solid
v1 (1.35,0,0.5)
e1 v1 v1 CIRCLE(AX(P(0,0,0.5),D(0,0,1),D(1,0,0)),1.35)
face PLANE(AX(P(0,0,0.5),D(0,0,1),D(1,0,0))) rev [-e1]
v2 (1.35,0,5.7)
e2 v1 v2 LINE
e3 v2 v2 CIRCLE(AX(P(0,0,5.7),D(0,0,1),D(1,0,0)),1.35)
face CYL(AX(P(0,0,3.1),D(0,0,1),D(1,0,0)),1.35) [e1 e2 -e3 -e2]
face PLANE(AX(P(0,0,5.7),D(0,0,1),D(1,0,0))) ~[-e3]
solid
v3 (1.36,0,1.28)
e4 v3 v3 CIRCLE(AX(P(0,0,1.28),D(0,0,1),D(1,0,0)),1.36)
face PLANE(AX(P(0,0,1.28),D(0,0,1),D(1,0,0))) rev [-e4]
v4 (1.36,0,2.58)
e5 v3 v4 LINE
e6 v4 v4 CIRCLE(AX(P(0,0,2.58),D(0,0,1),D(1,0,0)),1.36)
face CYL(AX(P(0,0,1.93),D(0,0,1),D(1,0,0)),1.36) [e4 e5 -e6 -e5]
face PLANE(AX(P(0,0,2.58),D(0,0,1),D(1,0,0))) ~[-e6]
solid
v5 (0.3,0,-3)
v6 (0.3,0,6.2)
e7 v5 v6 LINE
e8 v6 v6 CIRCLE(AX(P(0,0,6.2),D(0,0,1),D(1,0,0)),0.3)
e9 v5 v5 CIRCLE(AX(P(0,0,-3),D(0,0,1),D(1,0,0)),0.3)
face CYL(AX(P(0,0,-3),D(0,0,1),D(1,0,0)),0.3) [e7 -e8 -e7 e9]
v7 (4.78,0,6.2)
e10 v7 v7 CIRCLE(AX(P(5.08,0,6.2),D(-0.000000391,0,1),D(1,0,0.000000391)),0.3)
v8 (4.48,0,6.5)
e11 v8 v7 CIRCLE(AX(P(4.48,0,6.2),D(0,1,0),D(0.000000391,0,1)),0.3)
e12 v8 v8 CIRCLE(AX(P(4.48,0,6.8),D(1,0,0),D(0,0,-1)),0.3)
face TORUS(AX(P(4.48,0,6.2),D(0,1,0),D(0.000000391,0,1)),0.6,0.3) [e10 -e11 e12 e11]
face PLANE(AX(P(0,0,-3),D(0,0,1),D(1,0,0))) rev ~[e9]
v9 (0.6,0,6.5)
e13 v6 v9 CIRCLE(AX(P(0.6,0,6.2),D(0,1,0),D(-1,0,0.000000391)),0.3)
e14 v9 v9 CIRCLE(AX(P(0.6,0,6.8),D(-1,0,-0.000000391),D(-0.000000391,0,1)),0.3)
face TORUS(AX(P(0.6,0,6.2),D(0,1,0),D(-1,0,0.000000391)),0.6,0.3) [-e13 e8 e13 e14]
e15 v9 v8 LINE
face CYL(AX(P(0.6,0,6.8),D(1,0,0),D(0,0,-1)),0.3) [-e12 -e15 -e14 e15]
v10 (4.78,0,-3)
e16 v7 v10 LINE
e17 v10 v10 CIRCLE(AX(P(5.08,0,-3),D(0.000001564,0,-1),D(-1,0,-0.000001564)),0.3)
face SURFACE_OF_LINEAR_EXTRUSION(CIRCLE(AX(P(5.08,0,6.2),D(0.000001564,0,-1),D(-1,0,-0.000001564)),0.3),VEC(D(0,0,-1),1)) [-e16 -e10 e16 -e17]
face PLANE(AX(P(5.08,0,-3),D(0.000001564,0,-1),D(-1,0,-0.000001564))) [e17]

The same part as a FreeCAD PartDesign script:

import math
import FreeCAD as App
import Part
import Sketcher

V = App.Vector


def add_polygon(sketch, points):
    """Adds a closed chain of lines whose ends are joined by coincident constraints."""
    first, n = sketch.GeometryCount, len(points)
    for a, b in zip(points, points[1:] + points[:1]):
        sketch.addGeometry(Part.LineSegment(App.Vector(*a, 0), App.Vector(*b, 0)), False)
    for i in range(n):
        sketch.addConstraint(Sketcher.Constraint("Coincident", first + i, 2, first + (i + 1) % n, 1))

doc = App.newDocument("Part")
body = doc.addObject("PartDesign::Body", "Body")

# Sketch on XY plane
sketch1 = body.newObject("Sketcher::SketchObject", "Sketch")
sketch1.AttachmentSupport = (doc.getObject("XY_Plane"), [""])
sketch1.MapMode = "FlatFace"
sketch1.addGeometry(Part.Circle(V(0, 0, 0), V(0, 0, 1), 0.3), False)
sketch1.addConstraint([
    Sketcher.Constraint("Coincident", 0, 3, -1, 1),
    Sketcher.Constraint("Diameter", 0, 0.6),
])

# Sketch on XZ plane
sketch2 = body.newObject("Sketcher::SketchObject", "Sketch001")
sketch2.AttachmentSupport = (doc.getObject("XZ_Plane"), [""])
sketch2.MapMode = "FlatFace"
sketch2.addGeometry([
    Part.LineSegment(V(0, -3, 0), V(0, 6.2, 0)),  # 0
    Part.ArcOfCircle(Part.Circle(V(0.6, 6.2, 0), V(0, 0, 1), 0.6), math.radians(90), math.radians(180)),  # 1
    Part.LineSegment(V(0.6, 6.8, 0), V(4.5, 6.8, 0)),  # 2
    Part.ArcOfCircle(Part.Circle(V(4.5, 6.2, 0), V(0, 0, 1), 0.6), math.radians(0), math.radians(90)),  # 3
    Part.LineSegment(V(5.1, 6.2, 0), V(5.1, -3, 0)),  # 4
], False)
sketch2.addConstraint([
    Sketcher.Constraint("Tangent", 0, 2, 1, 2),
    Sketcher.Constraint("Tangent", 1, 1, 2, 1),
    Sketcher.Constraint("Tangent", 2, 2, 3, 2),
    Sketcher.Constraint("Tangent", 3, 1, 4, 1),
    Sketcher.Constraint("Vertical", 0),
    Sketcher.Constraint("Horizontal", 2),
    Sketcher.Constraint("Vertical", 4),
    Sketcher.Constraint("Equal", 1, 3),
    Sketcher.Constraint("PointOnObject", 0, 1, -2),
    Sketcher.Constraint("Horizontal", 0, 1, 4, 2),
    Sketcher.Constraint("Radius", 1, 0.6),
    Sketcher.Constraint("DistanceY", 0, 1, 0, 2, 9.2),
    Sketcher.Constraint("DistanceY", 0, 1, -1, 1, 3.0),
    Sketcher.Constraint("DistanceX", 2, 1, 2, 2, 3.88),
])
doc.recompute()

additivepipe = body.newObject("PartDesign::AdditivePipe", "AdditivePipe")
additivepipe.Profile = sketch1
additivepipe.Spine = (sketch2, ["Edge1", "Edge2", "Edge3", "Edge4", "Edge5"])
body2 = doc.addObject("PartDesign::Body", "Body001")

# Sketch on XZ plane
sketch3 = body2.newObject("Sketcher::SketchObject", "Sketch002")
sketch3.AttachmentSupport = (doc.getObject("XZ_Plane001"), [""])
sketch3.MapMode = "FlatFace"
add_polygon(sketch3, [(0, 5.7), (0, 0.5), (1.4, 0.5), (1.4, 5.7)])  # lines 0-3
sketch3.addConstraint([
    Sketcher.Constraint("Vertical", 0),
    Sketcher.Constraint("Horizontal", 1),
    Sketcher.Constraint("Vertical", 2),
    Sketcher.Constraint("Horizontal", 3),
    Sketcher.Constraint("PointOnObject", 0, 2, -2),
    Sketcher.Constraint("DistanceY", 0, 2, 0, 1, 5.2),
    Sketcher.Constraint("DistanceX", 1, 1, 1, 2, 1.35),
    Sketcher.Constraint("DistanceY", -1, 1, 0, 2, 0.5),
])
revolution = body2.newObject("PartDesign::Revolution", "Revolution")
revolution.Profile = sketch3
revolution.ReferenceAxis = (sketch3, ["V_Axis"])
revolution.Angle = 360
body3 = doc.addObject("PartDesign::Body", "Body002")

# Sketch on XZ plane
sketch4 = body3.newObject("Sketcher::SketchObject", "Sketch003")
sketch4.AttachmentSupport = (doc.getObject("XZ_Plane002"), [""])
sketch4.MapMode = "FlatFace"
add_polygon(sketch4, [(0, 2.6), (0, 1.3), (1.4, 1.3), (1.4, 2.6)])  # lines 0-3
sketch4.addConstraint([
    Sketcher.Constraint("Vertical", 0),
    Sketcher.Constraint("Horizontal", 1),
    Sketcher.Constraint("Vertical", 2),
    Sketcher.Constraint("Horizontal", 3),
    Sketcher.Constraint("PointOnObject", 0, 2, -2),
    Sketcher.Constraint("DistanceY", 0, 2, 0, 1, 1.3),
    Sketcher.Constraint("DistanceX", 1, 1, 1, 2, 1.36),
    Sketcher.Constraint("DistanceY", -1, 1, 0, 2, 1.28),
])
revolution2 = body3.newObject("PartDesign::Revolution", "Revolution001")
revolution2.Profile = sketch4
revolution2.ReferenceAxis = (sketch4, ["V_Axis"])
revolution2.Angle = 360

doc.recompute()
